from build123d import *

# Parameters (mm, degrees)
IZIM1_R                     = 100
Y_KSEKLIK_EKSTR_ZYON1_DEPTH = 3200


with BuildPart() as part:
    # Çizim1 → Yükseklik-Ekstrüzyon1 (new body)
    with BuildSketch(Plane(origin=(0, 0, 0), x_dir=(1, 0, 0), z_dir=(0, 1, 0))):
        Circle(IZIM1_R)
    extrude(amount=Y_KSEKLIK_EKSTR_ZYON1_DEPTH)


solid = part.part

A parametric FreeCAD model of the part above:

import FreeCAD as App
import Part
import Sketcher
from FreeCAD import Vector

doc = App.newDocument("Part")
body = doc.addObject("PartDesign::Body", "Body")

# Sketch on XZ plane
sketch1 = body.newObject("Sketcher::SketchObject", "Sketch")
sketch1.AttachmentSupport = (doc.getObject("XZ_Plane"), [""])
sketch1.MapMode = "FlatFace"
sketch1.addGeometry(Part.Circle(Vector(0, 0, 0), Vector(0, 0, 1), 100), False)
sketch1.addConstraint(Sketcher.Constraint("Coincident", 0, 3, -1, 1))
sketch1.addConstraint(Sketcher.Constraint("Diameter", 0, 200.0))
pad1 = body.newObject("PartDesign::Pad", "Pad")
pad1.Profile = sketch1
pad1.Length = 3200
pad1.Reversed = True

doc.recompute()
